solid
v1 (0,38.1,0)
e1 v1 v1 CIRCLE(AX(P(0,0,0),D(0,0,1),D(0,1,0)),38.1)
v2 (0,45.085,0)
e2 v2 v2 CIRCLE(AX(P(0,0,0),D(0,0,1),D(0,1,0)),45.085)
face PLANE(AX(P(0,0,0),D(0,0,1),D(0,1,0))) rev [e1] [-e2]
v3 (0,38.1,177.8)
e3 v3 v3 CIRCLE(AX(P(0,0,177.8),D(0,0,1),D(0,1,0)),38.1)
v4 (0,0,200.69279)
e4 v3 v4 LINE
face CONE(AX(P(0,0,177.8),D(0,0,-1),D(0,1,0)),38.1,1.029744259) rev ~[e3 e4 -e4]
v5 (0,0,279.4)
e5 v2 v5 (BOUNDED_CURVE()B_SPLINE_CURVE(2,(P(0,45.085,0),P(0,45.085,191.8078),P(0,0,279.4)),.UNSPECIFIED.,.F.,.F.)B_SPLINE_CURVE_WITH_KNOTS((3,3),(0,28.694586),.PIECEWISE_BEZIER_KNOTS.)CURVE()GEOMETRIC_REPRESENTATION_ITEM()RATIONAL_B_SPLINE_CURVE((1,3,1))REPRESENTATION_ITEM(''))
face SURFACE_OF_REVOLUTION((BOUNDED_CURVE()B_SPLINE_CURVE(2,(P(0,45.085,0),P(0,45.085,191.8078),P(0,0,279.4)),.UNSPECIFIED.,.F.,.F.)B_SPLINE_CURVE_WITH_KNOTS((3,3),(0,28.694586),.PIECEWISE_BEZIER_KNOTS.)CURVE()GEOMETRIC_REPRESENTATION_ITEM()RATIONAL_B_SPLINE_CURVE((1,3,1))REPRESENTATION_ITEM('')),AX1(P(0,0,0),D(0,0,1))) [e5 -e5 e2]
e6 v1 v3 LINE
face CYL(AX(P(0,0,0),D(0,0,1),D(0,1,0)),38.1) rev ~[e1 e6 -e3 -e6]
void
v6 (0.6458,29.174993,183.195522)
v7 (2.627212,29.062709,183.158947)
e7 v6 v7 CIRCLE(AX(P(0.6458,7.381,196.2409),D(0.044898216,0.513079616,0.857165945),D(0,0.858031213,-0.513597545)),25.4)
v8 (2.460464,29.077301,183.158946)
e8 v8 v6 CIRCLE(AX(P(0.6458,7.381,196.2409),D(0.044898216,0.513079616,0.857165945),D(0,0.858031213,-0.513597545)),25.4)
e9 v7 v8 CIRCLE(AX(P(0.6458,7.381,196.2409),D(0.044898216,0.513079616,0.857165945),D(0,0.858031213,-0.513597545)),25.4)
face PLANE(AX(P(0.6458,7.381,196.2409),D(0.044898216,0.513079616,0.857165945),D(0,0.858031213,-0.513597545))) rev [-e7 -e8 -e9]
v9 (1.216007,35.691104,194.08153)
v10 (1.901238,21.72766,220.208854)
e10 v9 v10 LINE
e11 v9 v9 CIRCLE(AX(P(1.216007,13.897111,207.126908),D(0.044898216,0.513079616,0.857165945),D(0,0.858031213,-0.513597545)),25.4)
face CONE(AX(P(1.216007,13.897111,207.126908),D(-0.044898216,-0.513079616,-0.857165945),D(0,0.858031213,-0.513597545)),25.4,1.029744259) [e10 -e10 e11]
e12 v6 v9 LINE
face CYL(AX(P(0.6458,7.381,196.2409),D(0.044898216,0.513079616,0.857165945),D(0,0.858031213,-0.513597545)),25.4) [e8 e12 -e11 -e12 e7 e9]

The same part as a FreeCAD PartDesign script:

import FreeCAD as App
import Part
import Sketcher
Q = App.Units.Quantity

doc = App.newDocument("Part")
body = doc.addObject("PartDesign::Body", "Body")

# Sketch on YZ plane
sketch1 = body.newObject("Sketcher::SketchObject", "Sketch")
sketch1.AttachmentSupport = (doc.getObject("YZ_Plane"), [""])
sketch1.MapMode = "FlatFace"
sketch1.addGeometry(Part.LineSegment(App.Vector(0, 279.4, 0), App.Vector(0, 0, 0)), False)
sketch1.addGeometry(Part.LineSegment(App.Vector(0, 0, 0), App.Vector(45.085, 0, 0)), False)
sketch1.addGeometry(Part.BSplineCurve([App.Vector(45.085, 0, 0), App.Vector(45.085, 191.8078, 0), App.Vector(0, 279.4, 0)], [3, 3], [0, 28.694586], False, 2, [1, 3, 1], False), False)
sketch1.addConstraint(Sketcher.Constraint("Block", 2))
sketch1.addConstraint(Sketcher.Constraint("Coincident", 0, 2, 1, 1))
sketch1.addConstraint(Sketcher.Constraint("Coincident", 1, 2, 2, 1))
sketch1.addConstraint(Sketcher.Constraint("Coincident", 2, 2, 0, 1))
sketch1.addConstraint(Sketcher.Constraint("Vertical", 0))
sketch1.addConstraint(Sketcher.Constraint("Horizontal", 1))
revolution = body.newObject("PartDesign::Revolution", "Revolution")
revolution.Profile = sketch1
revolution.ReferenceAxis = (sketch1, ["V_Axis"])
revolution.Angle = 360

# Sketch on XY plane
sketch2 = body.newObject("Sketcher::SketchObject", "Sketch001")
sketch2.AttachmentSupport = (doc.getObject("XY_Plane"), [""])
sketch2.MapMode = "FlatFace"
sketch2.addGeometry(Part.Circle(App.Vector(0, 0, 0), App.Vector(0, 0, 1), 38), False)
sketch2.addConstraint(Sketcher.Constraint("Coincident", 0, 3, -1, 1))
sketch2.addConstraint(Sketcher.Constraint("Diameter", 0, Q("3 in")))
doc.recompute()
hole = body.newObject("PartDesign::Hole", "Hole")
hole.Profile = sketch2
hole.ThreadType = "None"
hole.Diameter = Q("3 in")
hole.DepthType = "Dimension"
hole.Depth = Q("7 in")
hole.DrillPoint = "Angled"
hole.DrillPointAngle = 118
hole.Reversed = True

# Sketch on an angled plane
sketch3 = body.newObject("Sketcher::SketchObject", "Sketch002")
sketch3.Placement = App.Placement(App.Vector(7.723708, 88.263574, 147.455731), App.Rotation(App.Vector(0, 0.858031213, -0.513597545), App.Vector(0.998991567, -0.023059614, -0.038524071), App.Vector(-0.044898216, -0.513079616, -0.857165945), "ZXY"))
sketch3.addGeometry(Part.Circle(App.Vector(-94, -7, 0), App.Vector(0, 0, 1), 25), False)
sketch3.addConstraint(Sketcher.Constraint("Diameter", 0, Q("2 in")))
sketch3.addConstraint(Sketcher.Constraint("DistanceX", 0, 3, -1, 1, 94.4557))
sketch3.addConstraint(Sketcher.Constraint("DistanceY", 0, 3, -1, 1, 7.085))
doc.recompute()
hole2 = body.newObject("PartDesign::Hole", "Hole001")
hole2.Profile = sketch3
hole2.ThreadType = "None"
hole2.Diameter = Q("2 in")
hole2.DepthType = "Dimension"
hole2.Depth = Q("0.5 in")
hole2.DrillPoint = "Angled"
hole2.DrillPointAngle = 118

doc.recompute()
